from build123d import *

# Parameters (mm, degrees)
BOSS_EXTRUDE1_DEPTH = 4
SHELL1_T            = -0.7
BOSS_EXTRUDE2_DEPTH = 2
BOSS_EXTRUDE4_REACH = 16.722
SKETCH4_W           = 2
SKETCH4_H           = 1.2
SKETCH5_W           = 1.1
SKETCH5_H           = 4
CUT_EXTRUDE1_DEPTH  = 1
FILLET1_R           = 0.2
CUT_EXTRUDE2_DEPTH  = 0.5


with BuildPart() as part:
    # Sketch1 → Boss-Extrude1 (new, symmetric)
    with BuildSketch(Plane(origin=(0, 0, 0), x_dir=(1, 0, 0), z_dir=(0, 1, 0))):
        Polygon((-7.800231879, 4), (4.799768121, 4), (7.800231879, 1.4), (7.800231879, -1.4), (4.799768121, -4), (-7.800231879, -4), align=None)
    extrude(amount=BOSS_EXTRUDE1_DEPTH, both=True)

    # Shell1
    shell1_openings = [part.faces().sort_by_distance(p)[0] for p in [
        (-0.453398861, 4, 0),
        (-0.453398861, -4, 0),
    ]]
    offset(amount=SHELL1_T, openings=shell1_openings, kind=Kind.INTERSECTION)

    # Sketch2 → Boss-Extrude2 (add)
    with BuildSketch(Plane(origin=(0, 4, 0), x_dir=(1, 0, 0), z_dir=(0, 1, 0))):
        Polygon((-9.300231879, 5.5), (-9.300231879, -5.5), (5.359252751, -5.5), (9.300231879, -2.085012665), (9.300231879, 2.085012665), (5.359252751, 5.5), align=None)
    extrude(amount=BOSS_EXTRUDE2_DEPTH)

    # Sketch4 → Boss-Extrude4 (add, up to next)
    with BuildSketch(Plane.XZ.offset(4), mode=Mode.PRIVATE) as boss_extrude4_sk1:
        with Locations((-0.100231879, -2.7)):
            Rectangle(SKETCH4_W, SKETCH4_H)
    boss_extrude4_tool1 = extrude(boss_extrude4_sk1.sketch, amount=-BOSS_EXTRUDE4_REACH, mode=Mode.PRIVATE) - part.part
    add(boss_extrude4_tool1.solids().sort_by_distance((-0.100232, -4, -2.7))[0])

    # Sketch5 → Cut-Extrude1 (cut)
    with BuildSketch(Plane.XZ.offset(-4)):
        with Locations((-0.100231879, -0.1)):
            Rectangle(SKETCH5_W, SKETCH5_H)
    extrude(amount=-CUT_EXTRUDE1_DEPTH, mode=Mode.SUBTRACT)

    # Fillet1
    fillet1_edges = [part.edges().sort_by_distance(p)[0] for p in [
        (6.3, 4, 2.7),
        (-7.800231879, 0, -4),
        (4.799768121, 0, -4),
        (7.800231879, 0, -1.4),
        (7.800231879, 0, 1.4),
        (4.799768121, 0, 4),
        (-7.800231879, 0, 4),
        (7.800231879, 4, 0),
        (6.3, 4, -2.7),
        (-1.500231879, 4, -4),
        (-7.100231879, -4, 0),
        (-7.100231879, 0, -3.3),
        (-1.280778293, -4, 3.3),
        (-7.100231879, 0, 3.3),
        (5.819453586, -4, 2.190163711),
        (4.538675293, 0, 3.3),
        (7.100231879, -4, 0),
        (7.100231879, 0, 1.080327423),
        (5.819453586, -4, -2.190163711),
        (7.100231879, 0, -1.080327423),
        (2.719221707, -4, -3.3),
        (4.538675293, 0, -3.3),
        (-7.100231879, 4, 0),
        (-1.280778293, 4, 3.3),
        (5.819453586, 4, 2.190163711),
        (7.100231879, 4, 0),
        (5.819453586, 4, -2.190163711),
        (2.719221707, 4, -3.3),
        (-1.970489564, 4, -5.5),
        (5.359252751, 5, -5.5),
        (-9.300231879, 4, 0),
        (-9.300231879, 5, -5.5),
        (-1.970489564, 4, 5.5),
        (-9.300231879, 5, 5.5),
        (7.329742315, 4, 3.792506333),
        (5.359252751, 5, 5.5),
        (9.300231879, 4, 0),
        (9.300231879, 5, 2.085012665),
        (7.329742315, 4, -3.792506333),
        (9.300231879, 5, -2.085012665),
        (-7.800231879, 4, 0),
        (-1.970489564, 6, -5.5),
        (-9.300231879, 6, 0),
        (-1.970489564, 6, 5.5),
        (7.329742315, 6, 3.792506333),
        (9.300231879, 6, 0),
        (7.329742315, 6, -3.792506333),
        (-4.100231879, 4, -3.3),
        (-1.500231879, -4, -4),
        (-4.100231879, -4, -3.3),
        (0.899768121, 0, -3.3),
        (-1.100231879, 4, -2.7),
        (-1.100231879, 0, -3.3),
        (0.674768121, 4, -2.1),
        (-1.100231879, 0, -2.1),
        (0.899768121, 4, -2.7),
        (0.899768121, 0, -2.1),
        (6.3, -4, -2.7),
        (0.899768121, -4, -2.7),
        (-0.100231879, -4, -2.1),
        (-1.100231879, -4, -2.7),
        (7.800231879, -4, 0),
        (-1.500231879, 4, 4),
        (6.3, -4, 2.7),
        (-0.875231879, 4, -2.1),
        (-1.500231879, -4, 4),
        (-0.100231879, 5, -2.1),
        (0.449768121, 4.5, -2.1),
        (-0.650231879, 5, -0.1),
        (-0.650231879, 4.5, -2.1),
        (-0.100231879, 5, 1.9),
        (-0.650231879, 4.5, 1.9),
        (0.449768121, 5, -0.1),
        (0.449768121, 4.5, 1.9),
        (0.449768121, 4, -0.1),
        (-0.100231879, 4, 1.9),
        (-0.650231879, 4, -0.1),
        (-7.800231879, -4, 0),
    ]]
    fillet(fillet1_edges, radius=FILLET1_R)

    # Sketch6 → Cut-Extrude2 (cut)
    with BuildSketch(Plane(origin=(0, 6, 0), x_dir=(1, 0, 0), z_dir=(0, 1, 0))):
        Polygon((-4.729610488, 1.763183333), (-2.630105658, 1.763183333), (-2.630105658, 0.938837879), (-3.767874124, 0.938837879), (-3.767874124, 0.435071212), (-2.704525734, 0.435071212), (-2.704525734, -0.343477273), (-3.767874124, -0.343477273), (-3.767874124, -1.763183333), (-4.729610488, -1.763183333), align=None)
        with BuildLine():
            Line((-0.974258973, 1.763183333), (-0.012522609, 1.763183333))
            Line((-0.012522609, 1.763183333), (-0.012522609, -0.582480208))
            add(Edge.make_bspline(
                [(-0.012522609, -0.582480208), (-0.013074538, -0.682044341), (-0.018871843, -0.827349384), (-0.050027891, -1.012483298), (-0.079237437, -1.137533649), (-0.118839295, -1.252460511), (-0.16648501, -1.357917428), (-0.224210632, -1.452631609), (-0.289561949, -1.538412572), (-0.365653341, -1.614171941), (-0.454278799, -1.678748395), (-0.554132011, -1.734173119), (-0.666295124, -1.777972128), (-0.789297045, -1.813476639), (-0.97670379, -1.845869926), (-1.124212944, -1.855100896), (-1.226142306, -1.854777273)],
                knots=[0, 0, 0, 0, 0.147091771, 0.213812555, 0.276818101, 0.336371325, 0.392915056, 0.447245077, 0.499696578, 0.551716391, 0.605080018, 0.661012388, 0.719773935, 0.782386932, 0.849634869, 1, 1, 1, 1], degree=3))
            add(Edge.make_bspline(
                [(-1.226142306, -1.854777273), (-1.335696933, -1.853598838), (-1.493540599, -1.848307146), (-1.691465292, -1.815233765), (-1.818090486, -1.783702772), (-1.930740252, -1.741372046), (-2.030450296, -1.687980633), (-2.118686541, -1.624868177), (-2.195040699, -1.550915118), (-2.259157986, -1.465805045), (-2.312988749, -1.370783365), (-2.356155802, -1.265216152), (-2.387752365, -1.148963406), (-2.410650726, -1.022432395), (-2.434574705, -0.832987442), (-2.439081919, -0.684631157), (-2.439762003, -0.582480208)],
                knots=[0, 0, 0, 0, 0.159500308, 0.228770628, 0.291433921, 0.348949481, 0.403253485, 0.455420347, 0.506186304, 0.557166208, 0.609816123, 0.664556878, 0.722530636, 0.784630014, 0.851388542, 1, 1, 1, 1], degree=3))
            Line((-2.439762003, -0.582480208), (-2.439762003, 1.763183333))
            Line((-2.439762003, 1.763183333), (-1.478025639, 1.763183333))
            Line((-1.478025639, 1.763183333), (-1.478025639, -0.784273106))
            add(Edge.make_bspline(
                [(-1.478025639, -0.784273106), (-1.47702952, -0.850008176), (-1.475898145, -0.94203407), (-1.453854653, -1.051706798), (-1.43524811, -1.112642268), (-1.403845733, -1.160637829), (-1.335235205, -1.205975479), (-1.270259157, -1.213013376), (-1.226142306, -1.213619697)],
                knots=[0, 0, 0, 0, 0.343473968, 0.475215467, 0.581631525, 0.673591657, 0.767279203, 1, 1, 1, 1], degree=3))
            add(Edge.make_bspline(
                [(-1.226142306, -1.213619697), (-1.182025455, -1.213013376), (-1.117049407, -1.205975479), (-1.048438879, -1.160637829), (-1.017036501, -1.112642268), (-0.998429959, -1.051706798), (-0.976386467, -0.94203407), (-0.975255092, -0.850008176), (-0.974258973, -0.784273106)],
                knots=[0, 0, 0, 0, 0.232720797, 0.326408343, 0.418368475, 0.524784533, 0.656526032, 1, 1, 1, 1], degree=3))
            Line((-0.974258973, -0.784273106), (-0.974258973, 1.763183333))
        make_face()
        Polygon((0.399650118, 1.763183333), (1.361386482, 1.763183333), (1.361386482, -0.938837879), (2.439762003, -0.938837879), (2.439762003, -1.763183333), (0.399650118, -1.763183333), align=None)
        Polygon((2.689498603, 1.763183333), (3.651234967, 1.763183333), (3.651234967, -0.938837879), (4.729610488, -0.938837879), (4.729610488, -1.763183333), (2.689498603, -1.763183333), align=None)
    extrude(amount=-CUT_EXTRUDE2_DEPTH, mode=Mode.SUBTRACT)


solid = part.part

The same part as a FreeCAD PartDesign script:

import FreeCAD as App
import Part
import Sketcher
Q = App.Units.Quantity


def faces_at(feature, points):
    """Names of the faces that lie closest to the given points."""
    faces = feature.Shape.Faces
    near = lambda p: min(range(len(faces)), key=lambda i: faces[i].distToShape(Part.Vertex(*p))[0])
    return sorted({f"Face{near(p) + 1}" for p in points})


def add_polygon(sketch, points):
    """Adds a closed chain of lines whose ends are joined by coincident constraints."""
    first, n = sketch.GeometryCount, len(points)
    for a, b in zip(points, points[1:] + points[:1]):
        sketch.addGeometry(Part.LineSegment(App.Vector(*a, 0), App.Vector(*b, 0)), False)
    for i in range(n):
        sketch.addConstraint(Sketcher.Constraint("Coincident", first + i, 2, first + (i + 1) % n, 1))

doc = App.newDocument("Part")
body = doc.addObject("PartDesign::Body", "Body")

# Sketch on XZ plane
sketch1 = body.newObject("Sketcher::SketchObject", "Sketch")
sketch1.AttachmentSupport = (doc.getObject("XZ_Plane"), [""])
sketch1.MapMode = "FlatFace"
add_polygon(sketch1, [(4.8, -4), (-7.8, -4), (-7.8, 4), (4.8, 4), (7.8, 1.4), (7.8, -1.4)])  # lines 0-5
sketch1.addConstraint(Sketcher.Constraint("Horizontal", 0))
sketch1.addConstraint(Sketcher.Constraint("Vertical", 1))
sketch1.addConstraint(Sketcher.Constraint("Horizontal", 2))
sketch1.addConstraint(Sketcher.Constraint("Vertical", 4))
sketch1.addConstraint(Sketcher.Constraint("Symmetric", 2, 2, 5, 2, -1))
sketch1.addConstraint(Sketcher.Constraint("Equal", 3, 5))
sketch1.addConstraint(Sketcher.Constraint("DistanceY", 1, 1, 1, 2, 8.0))
sketch1.addConstraint(Sketcher.Constraint("DistanceX", 0, 2, 0, 1, 12.6))
sketch1.addConstraint(Sketcher.Constraint("DistanceY", 4, 2, 4, 1, 2.8))
sketch1.addConstraint(Sketcher.Constraint("Angle", 3, Q("-40.91 deg")))
sketch1.addConstraint(Sketcher.Constraint("DistanceX", 0, 2, -1, 1, 7.800232))
pad1 = body.newObject("PartDesign::Pad", "Pad")
pad1.Profile = sketch1
pad1.Length = 8
pad1.Midplane = True
doc.recompute()

thickness = body.newObject("PartDesign::Thickness", "Thickness")
thickness.Base = (pad1, faces_at(pad1, [(0, 4, 0), (0, -4, 0)]))
thickness.Value = 0.7
thickness.Reversed = True
thickness.Join = "Intersection"

# Sketch on XZ plane
sketch2 = body.newObject("Sketcher::SketchObject", "Sketch001")
sketch2.AttachmentSupport = (doc.getObject("XZ_Plane"), [""])
sketch2.MapMode = "FlatFace"
sketch2.AttachmentOffset = App.Placement(App.Vector(0, 0, -4), App.Rotation())
add_polygon(sketch2, [(-9.3, -5.5), (-9.3, 5.5), (5.4, 5.5), (9.3, 2.1), (9.3, -2.1), (5.4, -5.5)])  # lines 0-5
sketch2.addConstraint(Sketcher.Constraint("Vertical", 0))
sketch2.addConstraint(Sketcher.Constraint("Horizontal", 1))
sketch2.addConstraint(Sketcher.Constraint("Vertical", 3))
sketch2.addConstraint(Sketcher.Constraint("Horizontal", 5))
sketch2.addConstraint(Sketcher.Constraint("Symmetric", 1, 2, 4, 2, -1))
sketch2.addConstraint(Sketcher.Constraint("Equal", 2, 4))
sketch2.addConstraint(Sketcher.Constraint("DistanceY", 0, 1, 0, 2, 11.0))
sketch2.addConstraint(Sketcher.Constraint("Angle", 2, Q("-40.91 deg")))
sketch2.addConstraint(Sketcher.Constraint("DistanceX", 1, 1, 1, 2, 14.659485))
sketch2.addConstraint(Sketcher.Constraint("DistanceY", 3, 2, 3, 1, 4.170025))
sketch2.addConstraint(Sketcher.Constraint("DistanceX", 0, 2, -1, 1, 9.300232))
pad2 = body.newObject("PartDesign::Pad", "Pad001")
pad2.Profile = sketch2
pad2.Length = 2
pad2.Reversed = True

# Sketch on XZ plane
sketch3 = body.newObject("Sketcher::SketchObject", "Sketch002")
sketch3.AttachmentSupport = (doc.getObject("XZ_Plane"), [""])
sketch3.MapMode = "FlatFace"
sketch3.AttachmentOffset = App.Placement(App.Vector(0, 0, 4), App.Rotation())
add_polygon(sketch3, [(-1.1, -2.1), (-1.1, -3.3), (0.9, -3.3), (0.9, -2.1)])  # lines 0-3
sketch3.addConstraint(Sketcher.Constraint("Vertical", 0))
sketch3.addConstraint(Sketcher.Constraint("Horizontal", 1))
sketch3.addConstraint(Sketcher.Constraint("Vertical", 2))
sketch3.addConstraint(Sketcher.Constraint("Horizontal", 3))
sketch3.addConstraint(Sketcher.Constraint("DistanceX", 1, 1, 1, 2, 2.0))
sketch3.addConstraint(Sketcher.Constraint("DistanceY", 0, 2, 0, 1, 1.2))
sketch3.addConstraint(Sketcher.Constraint("DistanceY", 0, 2, -1, 1, 3.3))
sketch3.addConstraint(Sketcher.Constraint("DistanceX", 0, 2, -1, 1, 1.100232))
pad3 = body.newObject("PartDesign::Pad", "Pad002")
pad3.Profile = sketch3
pad3.Type = "UpToFirst"
pad3.Reversed = True

# Sketch on XZ plane
sketch4 = body.newObject("Sketcher::SketchObject", "Sketch003")
sketch4.AttachmentSupport = (doc.getObject("XZ_Plane"), [""])
sketch4.MapMode = "FlatFace"
sketch4.AttachmentOffset = App.Placement(App.Vector(0, 0, -4), App.Rotation())
add_polygon(sketch4, [(-0.7, 1.9), (-0.7, -2.1), (0.4, -2.1), (0.4, 1.9)])  # lines 0-3
sketch4.addConstraint(Sketcher.Constraint("Vertical", 0))
sketch4.addConstraint(Sketcher.Constraint("Horizontal", 1))
sketch4.addConstraint(Sketcher.Constraint("Vertical", 2))
sketch4.addConstraint(Sketcher.Constraint("Horizontal", 3))
sketch4.addConstraint(Sketcher.Constraint("DistanceY", 0, 2, 0, 1, 4.0))
sketch4.addConstraint(Sketcher.Constraint("DistanceX", 1, 1, 1, 2, 1.1))
sketch4.addConstraint(Sketcher.Constraint("DistanceY", 0, 2, -1, 1, 2.1))
sketch4.addConstraint(Sketcher.Constraint("DistanceX", 0, 2, -1, 1, 0.650232))
pocket1 = body.newObject("PartDesign::Pocket", "Pocket")
pocket1.Profile = sketch4
pocket1.Length = 1
doc.recompute()

fillet = body.newObject("PartDesign::Fillet", "Fillet")
fillet.Base = (pocket1, ["Edge1"])
fillet.UseAllEdges = True
fillet.Radius = 0.2

# Sketch on XZ plane
sketch5 = body.newObject("Sketcher::SketchObject", "Sketch004")
sketch5.AttachmentSupport = (doc.getObject("XZ_Plane"), [""])
sketch5.MapMode = "FlatFace"
sketch5.AttachmentOffset = App.Placement(App.Vector(0, 0, -6), App.Rotation())
add_polygon(sketch5, [(-2.630106, -1.763183), (-4.72961, -1.763183), (-4.72961, 1.763183), (-3.767874, 1.763183), (-3.767874, 0.343477), (-2.704526, 0.343477), (-2.704526, -0.435071), (-3.767874, -0.435071), (-3.767874, -0.938838), (-2.630106, -0.938838)])  # lines 0-9
sketch5.addGeometry(Part.LineSegment(App.Vector(-0.012523, -1.763183, 0), App.Vector(-0.974259, -1.763183, 0)), False)  # 10
sketch5.addGeometry(Part.LineSegment(App.Vector(-0.974259, -1.763183, 0), App.Vector(-0.974259, 0.784273, 0)), False)  # 11
sketch5.addGeometry(Part.BSplineCurve([App.Vector(-1.226142, 1.21362, 0), App.Vector(-1.182025, 1.213013, 0), App.Vector(-1.117049, 1.205975, 0), App.Vector(-1.048439, 1.160638, 0), App.Vector(-1.017037, 1.112642, 0), App.Vector(-0.99843, 1.051707, 0), App.Vector(-0.976386, 0.942034, 0), App.Vector(-0.975255, 0.850008, 0), App.Vector(-0.974259, 0.784273, 0)], [4, 1, 1, 1, 1, 1, 4], [0, 0.232720797, 0.326408343, 0.418368475, 0.524784533, 0.656526032, 1], False, 3, [1, 1, 1, 1, 1, 1, 1, 1, 1], False), False)  # 12
sketch5.addGeometry(Part.BSplineCurve([App.Vector(-1.478026, 0.784273, 0), App.Vector(-1.47703, 0.850008, 0), App.Vector(-1.475898, 0.942034, 0), App.Vector(-1.453855, 1.051707, 0), App.Vector(-1.435248, 1.112642, 0), App.Vector(-1.403846, 1.160638, 0), App.Vector(-1.335235, 1.205975, 0), App.Vector(-1.270259, 1.213013, 0), App.Vector(-1.226142, 1.21362, 0)], [4, 1, 1, 1, 1, 1, 4], [0, 0.343473968, 0.475215467, 0.581631525, 0.673591657, 0.767279203, 1], False, 3, [1, 1, 1, 1, 1, 1, 1, 1, 1], False), False)  # 13
sketch5.addGeometry(Part.LineSegment(App.Vector(-1.478026, 0.784273, 0), App.Vector(-1.478026, -1.763183, 0)), False)  # 14
sketch5.addGeometry(Part.LineSegment(App.Vector(-1.478026, -1.763183, 0), App.Vector(-2.439762, -1.763183, 0)), False)  # 15
sketch5.addGeometry(Part.LineSegment(App.Vector(-2.439762, -1.763183, 0), App.Vector(-2.439762, 0.58248, 0)), False)  # 16
sketch5.addGeometry(Part.BSplineCurve([App.Vector(-1.226142, 1.854777, 0), App.Vector(-1.335697, 1.853599, 0), App.Vector(-1.493541, 1.848307, 0), App.Vector(-1.691465, 1.815234, 0), App.Vector(-1.81809, 1.783703, 0), App.Vector(-1.93074, 1.741372, 0), App.Vector(-2.03045, 1.687981, 0), App.Vector(-2.118687, 1.624868, 0), App.Vector(-2.195041, 1.550915, 0), App.Vector(-2.259158, 1.465805, 0), App.Vector(-2.312989, 1.370783, 0), App.Vector(-2.356156, 1.265216, 0), App.Vector(-2.387752, 1.148963, 0), App.Vector(-2.410651, 1.022432, 0), App.Vector(-2.434575, 0.832987, 0), App.Vector(-2.439082, 0.684631, 0), App.Vector(-2.439762, 0.58248, 0)], [4, 1, 1, 1, 1, 1, 1, 1, 1, 1, 1, 1, 1, 1, 4], [0, 0.159500308, 0.228770628, 0.291433921, 0.348949481, 0.403253485, 0.455420347, 0.506186304, 0.557166208, 0.609816123, 0.664556878, 0.722530636, 0.784630014, 0.851388542, 1], False, 3, [1, 1, 1, 1, 1, 1, 1, 1, 1, 1, 1, 1, 1, 1, 1, 1, 1], False), False)  # 17
sketch5.addGeometry(Part.BSplineCurve([App.Vector(-0.012523, 0.58248, 0), App.Vector(-0.013075, 0.682044, 0), App.Vector(-0.018872, 0.827349, 0), App.Vector(-0.050028, 1.012483, 0), App.Vector(-0.079237, 1.137534, 0), App.Vector(-0.118839, 1.252461, 0), App.Vector(-0.166485, 1.357917, 0), App.Vector(-0.224211, 1.452632, 0), App.Vector(-0.289562, 1.538413, 0), App.Vector(-0.365653, 1.614172, 0), App.Vector(-0.454279, 1.678748, 0), App.Vector(-0.554132, 1.734173, 0), App.Vector(-0.666295, 1.777972, 0), App.Vector(-0.789297, 1.813477, 0), App.Vector(-0.976704, 1.84587, 0), App.Vector(-1.124213, 1.855101, 0), App.Vector(-1.226142, 1.854777, 0)], [4, 1, 1, 1, 1, 1, 1, 1, 1, 1, 1, 1, 1, 1, 4], [0, 0.147091771, 0.213812555, 0.276818101, 0.336371325, 0.392915056, 0.447245077, 0.499696578, 0.551716391, 0.605080018, 0.661012388, 0.719773935, 0.782386932, 0.849634869, 1], False, 3, [1, 1, 1, 1, 1, 1, 1, 1, 1, 1, 1, 1, 1, 1, 1, 1, 1], False), False)  # 18
sketch5.addGeometry(Part.LineSegment(App.Vector(-0.012523, 0.58248, 0), App.Vector(-0.012523, -1.763183, 0)), False)  # 19
add_polygon(sketch5, [(1.361386, -1.763183), (0.39965, -1.763183), (0.39965, 1.763183), (2.439762, 1.763183), (2.439762, 0.938838), (1.361386, 0.938838)])  # lines 20-25
add_polygon(sketch5, [(3.651235, -1.763183), (2.689499, -1.763183), (2.689499, 1.763183), (4.72961, 1.763183), (4.72961, 0.938838), (3.651235, 0.938838)])  # lines 26-31
sketch5.addConstraint(Sketcher.Constraint("Block", 12))
sketch5.addConstraint(Sketcher.Constraint("Block", 13))
sketch5.addConstraint(Sketcher.Constraint("Block", 17))
sketch5.addConstraint(Sketcher.Constraint("Block", 18))
sketch5.addConstraint(Sketcher.Constraint("Coincident", 10, 2, 11, 1))
sketch5.addConstraint(Sketcher.Constraint("Coincident", 11, 2, 12, 2))
sketch5.addConstraint(Sketcher.Constraint("Coincident", 13, 1, 14, 1))
sketch5.addConstraint(Sketcher.Constraint("Coincident", 14, 2, 15, 1))
sketch5.addConstraint(Sketcher.Constraint("Coincident", 15, 2, 16, 1))
sketch5.addConstraint(Sketcher.Constraint("Coincident", 16, 2, 17, 2))
sketch5.addConstraint(Sketcher.Constraint("Coincident", 18, 1, 19, 1))
sketch5.addConstraint(Sketcher.Constraint("Coincident", 19, 2, 10, 1))
sketch5.addConstraint(Sketcher.Constraint("Horizontal", 0))
sketch5.addConstraint(Sketcher.Constraint("Vertical", 1))
sketch5.addConstraint(Sketcher.Constraint("Horizontal", 2))
sketch5.addConstraint(Sketcher.Constraint("Vertical", 3))
sketch5.addConstraint(Sketcher.Constraint("Horizontal", 4))
sketch5.addConstraint(Sketcher.Constraint("Vertical", 5))
sketch5.addConstraint(Sketcher.Constraint("Horizontal", 6))
sketch5.addConstraint(Sketcher.Constraint("Vertical", 7))
sketch5.addConstraint(Sketcher.Constraint("Horizontal", 8))
sketch5.addConstraint(Sketcher.Constraint("Vertical", 9))
sketch5.addConstraint(Sketcher.Constraint("Horizontal", 10))
sketch5.addConstraint(Sketcher.Constraint("Vertical", 11))
sketch5.addConstraint(Sketcher.Constraint("Vertical", 14))
sketch5.addConstraint(Sketcher.Constraint("Horizontal", 15))
sketch5.addConstraint(Sketcher.Constraint("Vertical", 16))
sketch5.addConstraint(Sketcher.Constraint("Vertical", 19))
sketch5.addConstraint(Sketcher.Constraint("Horizontal", 20))
sketch5.addConstraint(Sketcher.Constraint("Vertical", 21))
sketch5.addConstraint(Sketcher.Constraint("Horizontal", 22))
sketch5.addConstraint(Sketcher.Constraint("Vertical", 23))
sketch5.addConstraint(Sketcher.Constraint("Horizontal", 24))
sketch5.addConstraint(Sketcher.Constraint("Vertical", 25))
sketch5.addConstraint(Sketcher.Constraint("Horizontal", 26))
sketch5.addConstraint(Sketcher.Constraint("Vertical", 27))
sketch5.addConstraint(Sketcher.Constraint("Horizontal", 28))
sketch5.addConstraint(Sketcher.Constraint("Vertical", 29))
sketch5.addConstraint(Sketcher.Constraint("Horizontal", 30))
sketch5.addConstraint(Sketcher.Constraint("Vertical", 31))
sketch5.addConstraint(Sketcher.Constraint("DistanceX", 4, 1, 4, 2, 1.063348))
sketch5.addConstraint(Sketcher.Constraint("DistanceX", 6, 2, 6, 1, 1.063348))
sketch5.addConstraint(Sketcher.Constraint("DistanceX", 8, 1, 8, 2, 1.137768))
sketch5.addConstraint(Sketcher.Constraint("DistanceX", 22, 1, 22, 2, 2.040112))
sketch5.addConstraint(Sketcher.Constraint("DistanceX", 28, 1, 28, 2, 2.040112))
sketch5.addConstraint(Sketcher.Constraint("DistanceY", 5, 2, 5, 1, 0.778548))
sketch5.addConstraint(Sketcher.Constraint("DistanceY", 25, 2, 25, 1, 2.702021))
sketch5.addConstraint(Sketcher.Constraint("DistanceY", 31, 2, 31, 1, 2.702021))
sketch5.addConstraint(Sketcher.Constraint("DistanceX", -1, 1, 26, 2, 2.689499))
sketch5.addConstraint(Sketcher.Constraint("DistanceX", 5, 2, 14, 2, 1.2265))
sketch5.addConstraint(Sketcher.Constraint("DistanceX", 0, 2, 0, 1, 2.099505))
sketch5.addConstraint(Sketcher.Constraint("DistanceX", 20, 2, 20, 1, 0.961736))
sketch5.addConstraint(Sketcher.Constraint("DistanceX", 26, 2, 26, 1, 0.961736))
sketch5.addConstraint(Sketcher.Constraint("DistanceY", 1, 1, 1, 2, 3.526367))
sketch5.addConstraint(Sketcher.Constraint("DistanceY", 3, 2, 3, 1, 1.419706))
sketch5.addConstraint(Sketcher.Constraint("DistanceY", 7, 2, 7, 1, 0.503767))
sketch5.addConstraint(Sketcher.Constraint("DistanceY", 11, 1, 11, 2, 2.547456))
sketch5.addConstraint(Sketcher.Constraint("DistanceY", 14, 2, 14, 1, 2.547456))
sketch5.addConstraint(Sketcher.Constraint("DistanceY", 21, 1, 21, 2, 3.526367))
sketch5.addConstraint(Sketcher.Constraint("DistanceY", 27, 1, 27, 2, 3.526367))
sketch5.addConstraint(Sketcher.Constraint("DistanceY", 5, 2, -1, 1, 0.435071))
sketch5.addConstraint(Sketcher.Constraint("DistanceX", -1, 1, 20, 2, 0.39965))
sketch5.addConstraint(Sketcher.Constraint("DistanceY", 11, 2, 21, 2, 0.97891))
sketch5.addConstraint(Sketcher.Constraint("DistanceY", 26, 2, 23, 2, 2.702021))
pocket2 = body.newObject("PartDesign::Pocket", "Pocket001")
pocket2.Profile = sketch5
pocket2.Length = 0.5
pocket2.Reversed = True

doc.recompute()
